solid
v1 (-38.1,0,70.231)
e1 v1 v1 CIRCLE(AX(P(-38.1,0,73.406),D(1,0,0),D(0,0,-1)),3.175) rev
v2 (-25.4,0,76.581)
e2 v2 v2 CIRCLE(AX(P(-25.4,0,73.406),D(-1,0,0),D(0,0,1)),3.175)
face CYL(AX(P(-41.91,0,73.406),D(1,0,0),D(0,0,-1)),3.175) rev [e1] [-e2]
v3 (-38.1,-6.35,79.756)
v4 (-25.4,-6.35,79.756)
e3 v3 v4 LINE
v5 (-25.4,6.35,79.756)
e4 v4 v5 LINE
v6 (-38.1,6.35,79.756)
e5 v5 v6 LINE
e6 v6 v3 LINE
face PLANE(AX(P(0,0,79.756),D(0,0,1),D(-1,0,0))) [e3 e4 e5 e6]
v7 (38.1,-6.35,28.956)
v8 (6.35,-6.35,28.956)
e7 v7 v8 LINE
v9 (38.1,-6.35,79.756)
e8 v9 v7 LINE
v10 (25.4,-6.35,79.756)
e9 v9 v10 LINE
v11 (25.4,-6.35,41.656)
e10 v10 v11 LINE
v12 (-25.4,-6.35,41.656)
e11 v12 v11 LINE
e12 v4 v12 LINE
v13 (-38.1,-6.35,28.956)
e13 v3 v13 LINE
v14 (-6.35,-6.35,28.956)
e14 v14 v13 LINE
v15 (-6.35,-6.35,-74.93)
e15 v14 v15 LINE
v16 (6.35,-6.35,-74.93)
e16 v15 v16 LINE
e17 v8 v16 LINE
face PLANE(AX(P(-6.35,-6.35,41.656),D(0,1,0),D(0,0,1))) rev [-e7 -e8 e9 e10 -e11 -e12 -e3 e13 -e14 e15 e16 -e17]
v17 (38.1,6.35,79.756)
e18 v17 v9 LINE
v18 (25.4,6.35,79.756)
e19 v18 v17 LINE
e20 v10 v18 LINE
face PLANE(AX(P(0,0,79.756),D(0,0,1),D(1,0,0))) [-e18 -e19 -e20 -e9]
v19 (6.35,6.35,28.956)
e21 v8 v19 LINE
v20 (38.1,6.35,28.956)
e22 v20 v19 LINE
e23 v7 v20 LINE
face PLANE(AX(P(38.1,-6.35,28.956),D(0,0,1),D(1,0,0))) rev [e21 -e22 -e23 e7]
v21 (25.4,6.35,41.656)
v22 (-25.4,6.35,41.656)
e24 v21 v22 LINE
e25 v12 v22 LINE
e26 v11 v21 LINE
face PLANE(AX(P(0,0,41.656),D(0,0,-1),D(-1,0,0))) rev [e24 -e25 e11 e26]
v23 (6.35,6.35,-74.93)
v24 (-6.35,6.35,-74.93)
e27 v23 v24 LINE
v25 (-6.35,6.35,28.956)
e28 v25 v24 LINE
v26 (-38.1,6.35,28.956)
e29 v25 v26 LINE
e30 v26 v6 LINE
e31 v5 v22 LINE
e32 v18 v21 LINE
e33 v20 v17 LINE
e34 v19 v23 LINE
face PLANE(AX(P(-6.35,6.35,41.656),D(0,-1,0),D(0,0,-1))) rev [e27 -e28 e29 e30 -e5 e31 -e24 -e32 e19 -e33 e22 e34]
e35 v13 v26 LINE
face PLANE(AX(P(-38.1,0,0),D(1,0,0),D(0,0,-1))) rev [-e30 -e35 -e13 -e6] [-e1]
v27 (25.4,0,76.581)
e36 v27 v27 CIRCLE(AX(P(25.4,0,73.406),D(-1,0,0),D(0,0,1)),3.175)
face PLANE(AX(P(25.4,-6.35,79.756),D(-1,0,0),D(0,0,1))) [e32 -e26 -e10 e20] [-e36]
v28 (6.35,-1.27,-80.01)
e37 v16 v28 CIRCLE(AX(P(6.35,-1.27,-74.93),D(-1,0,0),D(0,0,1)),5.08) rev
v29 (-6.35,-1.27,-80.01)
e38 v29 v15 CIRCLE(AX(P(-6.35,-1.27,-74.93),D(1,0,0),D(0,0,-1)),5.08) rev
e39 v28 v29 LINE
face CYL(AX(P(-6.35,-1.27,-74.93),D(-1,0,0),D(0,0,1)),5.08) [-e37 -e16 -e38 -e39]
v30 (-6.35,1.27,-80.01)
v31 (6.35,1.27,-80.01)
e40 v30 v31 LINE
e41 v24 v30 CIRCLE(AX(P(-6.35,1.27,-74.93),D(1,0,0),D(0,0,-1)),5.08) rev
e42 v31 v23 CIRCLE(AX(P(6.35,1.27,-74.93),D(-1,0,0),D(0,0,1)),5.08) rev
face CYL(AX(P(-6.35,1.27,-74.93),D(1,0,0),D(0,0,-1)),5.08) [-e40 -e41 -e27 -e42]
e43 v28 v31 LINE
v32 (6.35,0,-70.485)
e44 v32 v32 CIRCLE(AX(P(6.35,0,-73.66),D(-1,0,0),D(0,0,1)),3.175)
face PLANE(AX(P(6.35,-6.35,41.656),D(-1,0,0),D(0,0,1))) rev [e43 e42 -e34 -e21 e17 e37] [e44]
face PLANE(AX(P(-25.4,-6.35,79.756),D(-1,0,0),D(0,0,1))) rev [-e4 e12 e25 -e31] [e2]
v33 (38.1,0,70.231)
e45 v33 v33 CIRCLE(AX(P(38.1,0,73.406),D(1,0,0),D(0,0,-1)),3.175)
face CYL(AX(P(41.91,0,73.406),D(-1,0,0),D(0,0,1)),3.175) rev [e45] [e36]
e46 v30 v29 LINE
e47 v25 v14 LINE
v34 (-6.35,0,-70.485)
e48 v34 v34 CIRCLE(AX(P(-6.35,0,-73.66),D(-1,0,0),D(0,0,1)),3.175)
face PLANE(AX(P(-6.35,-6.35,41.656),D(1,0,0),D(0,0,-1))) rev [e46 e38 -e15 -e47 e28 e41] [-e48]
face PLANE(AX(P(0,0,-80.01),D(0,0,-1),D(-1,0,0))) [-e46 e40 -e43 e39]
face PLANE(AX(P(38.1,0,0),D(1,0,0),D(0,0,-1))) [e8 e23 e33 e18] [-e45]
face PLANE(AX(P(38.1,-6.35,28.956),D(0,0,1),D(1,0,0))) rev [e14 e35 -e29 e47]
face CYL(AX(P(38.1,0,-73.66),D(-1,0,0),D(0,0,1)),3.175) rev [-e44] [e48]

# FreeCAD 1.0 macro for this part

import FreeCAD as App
import Part
import Sketcher
Q = App.Units.Quantity


def edges_at(feature, points):
    """Names of the edges that pass closest to the given points."""
    edges = feature.Shape.Edges
    near = lambda p: min(range(len(edges)), key=lambda i: edges[i].distToShape(Part.Vertex(*p))[0])
    return sorted({f"Edge{near(p) + 1}" for p in points})

doc = App.newDocument("Part")
body = doc.addObject("PartDesign::Body", "Body")

# Sketch on XY plane
sketch1 = doc.addObject("Sketcher::SketchObject", "Sketch")
body.addObject(sketch1)
sketch1.AttachmentSupport = (doc.XY_Plane, [""])
sketch1.MapMode = "FlatFace"
sketch1.addGeometry([
    Part.LineSegment(App.Vector(-6, 6, 0), App.Vector(-6, -6, 0)),
    Part.LineSegment(App.Vector(-6, -6, 0), App.Vector(6, -6, 0)),
    Part.LineSegment(App.Vector(6, -6, 0), App.Vector(6, 6, 0)),
    Part.LineSegment(App.Vector(6, 6, 0), App.Vector(-6, 6, 0)),
], False)
sketch1.addConstraint([
    Sketcher.Constraint("Coincident", 0, 2, 1, 1),
    Sketcher.Constraint("Coincident", 1, 2, 2, 1),
    Sketcher.Constraint("Coincident", 2, 2, 3, 1),
    Sketcher.Constraint("Coincident", 3, 2, 0, 1),
    Sketcher.Constraint("Vertical", 0),
    Sketcher.Constraint("Horizontal", 1),
    Sketcher.Constraint("Vertical", 2),
    Sketcher.Constraint("Horizontal", 3),
    Sketcher.Constraint("Symmetric", 0, 2, 2, 2, -1, 1),
    Sketcher.Constraint("Equal", 3, 0),
    Sketcher.Constraint("DistanceX", 1, 1, 1, 2, Q("0.5 in")),
])
pad1 = doc.addObject("PartDesign::Pad", "Pad")
body.addObject(pad1)
pad1.Profile = sketch1
pad1.Type = "TwoLengths"
pad1.Length = Q("1.64 in")
pad1.Length2 = Q("3.15 in")

# Sketch on YZ plane
sketch2 = doc.addObject("Sketcher::SketchObject", "Sketch001")
body.addObject(sketch2)
sketch2.AttachmentSupport = (doc.YZ_Plane, [""])
sketch2.MapMode = "FlatFace"
sketch2.addGeometry([
    Part.LineSegment(App.Vector(6, 42, 0), App.Vector(-6, 42, 0)),
    Part.LineSegment(App.Vector(-6, 42, 0), App.Vector(-6, 29, 0)),
    Part.LineSegment(App.Vector(-6, 29, 0), App.Vector(6, 29, 0)),
    Part.LineSegment(App.Vector(6, 29, 0), App.Vector(6, 42, 0)),
], False)
sketch2.addConstraint([
    Sketcher.Constraint("Coincident", 0, 2, 1, 1),
    Sketcher.Constraint("Coincident", 1, 2, 2, 1),
    Sketcher.Constraint("Coincident", 2, 2, 3, 1),
    Sketcher.Constraint("Coincident", 3, 2, 0, 1),
    Sketcher.Constraint("Horizontal", 0),
    Sketcher.Constraint("Vertical", 1),
    Sketcher.Constraint("Horizontal", 2),
    Sketcher.Constraint("Vertical", 3),
    Sketcher.Constraint("Equal", 2, 1),
    Sketcher.Constraint("DistanceX", 0, 2, 0, 1, Q("0.5 in")),
    Sketcher.Constraint("DistanceX", 0, 2, -1, 1, Q("0.25 in")),
    Sketcher.Constraint("DistanceY", -1, 1, 0, 2, Q("1.64 in")),
])
pad2 = doc.addObject("PartDesign::Pad", "Pad001")
body.addObject(pad2)
pad2.Profile = sketch2
pad2.Length = Q("3 in")
pad2.Midplane = True

# Sketch on XY plane
sketch3 = doc.addObject("Sketcher::SketchObject", "Sketch002")
body.addObject(sketch3)
sketch3.AttachmentSupport = (doc.XY_Plane, [""])
sketch3.MapMode = "FlatFace"
sketch3.AttachmentOffset = App.Placement(App.Vector(0, 0, 1.14 * 25.4), App.Rotation())
sketch3.addGeometry([
    Part.LineSegment(App.Vector(38, 6, 0), App.Vector(38, -6, 0)),
    Part.LineSegment(App.Vector(38, -6, 0), App.Vector(25, -6, 0)),
    Part.LineSegment(App.Vector(25, -6, 0), App.Vector(25, 6, 0)),
    Part.LineSegment(App.Vector(25, 6, 0), App.Vector(38, 6, 0)),
], False)
sketch3.addConstraint([
    Sketcher.Constraint("Coincident", 0, 2, 1, 1),
    Sketcher.Constraint("Coincident", 1, 2, 2, 1),
    Sketcher.Constraint("Coincident", 2, 2, 3, 1),
    Sketcher.Constraint("Coincident", 3, 2, 0, 1),
    Sketcher.Constraint("Vertical", 0),
    Sketcher.Constraint("Horizontal", 1),
    Sketcher.Constraint("Vertical", 2),
    Sketcher.Constraint("Horizontal", 3),
    Sketcher.Constraint("Equal", 3, 0),
    Sketcher.Constraint("DistanceX", 1, 2, 1, 1, Q("0.5 in")),
    Sketcher.Constraint("DistanceX", -1, 1, 1, 2, Q("1 in")),
    Sketcher.Constraint("DistanceY", 0, 2, -1, 1, Q("0.25 in")),
])
pad3 = doc.addObject("PartDesign::Pad", "Pad002")
body.addObject(pad3)
pad3.Profile = sketch3
pad3.Length = Q("2 in")

# Sketch on YZ plane
sketch4 = doc.addObject("Sketcher::SketchObject", "Sketch003")
body.addObject(sketch4)
sketch4.AttachmentSupport = (doc.YZ_Plane, [""])
sketch4.MapMode = "FlatFace"
sketch4.AttachmentOffset = App.Placement(App.Vector(0, 0, 1 * 25.4), App.Rotation())
sketch4.addGeometry(Part.Circle(App.Vector(0, 73.4, 0), App.Vector(0, 0, 1), 3.2), False)
sketch4.addConstraint([
    Sketcher.Constraint("PointOnObject", 0, 3, -2),
    Sketcher.Constraint("Diameter", 0, Q("0.25 in")),
    Sketcher.Constraint("DistanceY", -1, 1, 0, 3, Q("2.89 in")),
])
pocket1 = doc.addObject("PartDesign::Pocket", "Pocket")
body.addObject(pocket1)
pocket1.Profile = sketch4
pocket1.Length = Q("0.65 in")
pocket1.Reversed = True
doc.recompute()

mirrored = doc.addObject("PartDesign::Mirrored", "Mirrored")
body.addObject(mirrored)
mirrored.Originals = [pad3, pocket1]
mirrored.MirrorPlane = (doc.YZ_Plane, [""])
body.Tip = mirrored

# Sketch on YZ plane
sketch5 = doc.addObject("Sketcher::SketchObject", "Sketch004")
body.addObject(sketch5)
sketch5.AttachmentSupport = (doc.YZ_Plane, [""])
sketch5.MapMode = "FlatFace"
sketch5.AttachmentOffset = App.Placement(App.Vector(0, 0, -0.25 * 25.4), App.Rotation())
sketch5.addGeometry(Part.Circle(App.Vector(0, -73.7, 0), App.Vector(0, 0, 1), 3.2), False)
sketch5.addConstraint([
    Sketcher.Constraint("PointOnObject", 0, 3, -2),
    Sketcher.Constraint("Diameter", 0, Q("0.25 in")),
    Sketcher.Constraint("DistanceY", 0, 3, -1, 1, Q("2.9 in")),
])
pocket2 = doc.addObject("PartDesign::Pocket", "Pocket001")
body.addObject(pocket2)
pocket2.Profile = sketch5
pocket2.Type = "ThroughAll"
pocket2.Reversed = True
doc.recompute()

fillet = doc.addObject("PartDesign::Fillet", "Fillet")
body.addObject(fillet)
fillet.Base = (pocket2, edges_at(pocket2, [(0, 6.35, -80.01), (0, -6.35, -80.01)]))
fillet.Radius = Q("0.2 in")

doc.recompute()
